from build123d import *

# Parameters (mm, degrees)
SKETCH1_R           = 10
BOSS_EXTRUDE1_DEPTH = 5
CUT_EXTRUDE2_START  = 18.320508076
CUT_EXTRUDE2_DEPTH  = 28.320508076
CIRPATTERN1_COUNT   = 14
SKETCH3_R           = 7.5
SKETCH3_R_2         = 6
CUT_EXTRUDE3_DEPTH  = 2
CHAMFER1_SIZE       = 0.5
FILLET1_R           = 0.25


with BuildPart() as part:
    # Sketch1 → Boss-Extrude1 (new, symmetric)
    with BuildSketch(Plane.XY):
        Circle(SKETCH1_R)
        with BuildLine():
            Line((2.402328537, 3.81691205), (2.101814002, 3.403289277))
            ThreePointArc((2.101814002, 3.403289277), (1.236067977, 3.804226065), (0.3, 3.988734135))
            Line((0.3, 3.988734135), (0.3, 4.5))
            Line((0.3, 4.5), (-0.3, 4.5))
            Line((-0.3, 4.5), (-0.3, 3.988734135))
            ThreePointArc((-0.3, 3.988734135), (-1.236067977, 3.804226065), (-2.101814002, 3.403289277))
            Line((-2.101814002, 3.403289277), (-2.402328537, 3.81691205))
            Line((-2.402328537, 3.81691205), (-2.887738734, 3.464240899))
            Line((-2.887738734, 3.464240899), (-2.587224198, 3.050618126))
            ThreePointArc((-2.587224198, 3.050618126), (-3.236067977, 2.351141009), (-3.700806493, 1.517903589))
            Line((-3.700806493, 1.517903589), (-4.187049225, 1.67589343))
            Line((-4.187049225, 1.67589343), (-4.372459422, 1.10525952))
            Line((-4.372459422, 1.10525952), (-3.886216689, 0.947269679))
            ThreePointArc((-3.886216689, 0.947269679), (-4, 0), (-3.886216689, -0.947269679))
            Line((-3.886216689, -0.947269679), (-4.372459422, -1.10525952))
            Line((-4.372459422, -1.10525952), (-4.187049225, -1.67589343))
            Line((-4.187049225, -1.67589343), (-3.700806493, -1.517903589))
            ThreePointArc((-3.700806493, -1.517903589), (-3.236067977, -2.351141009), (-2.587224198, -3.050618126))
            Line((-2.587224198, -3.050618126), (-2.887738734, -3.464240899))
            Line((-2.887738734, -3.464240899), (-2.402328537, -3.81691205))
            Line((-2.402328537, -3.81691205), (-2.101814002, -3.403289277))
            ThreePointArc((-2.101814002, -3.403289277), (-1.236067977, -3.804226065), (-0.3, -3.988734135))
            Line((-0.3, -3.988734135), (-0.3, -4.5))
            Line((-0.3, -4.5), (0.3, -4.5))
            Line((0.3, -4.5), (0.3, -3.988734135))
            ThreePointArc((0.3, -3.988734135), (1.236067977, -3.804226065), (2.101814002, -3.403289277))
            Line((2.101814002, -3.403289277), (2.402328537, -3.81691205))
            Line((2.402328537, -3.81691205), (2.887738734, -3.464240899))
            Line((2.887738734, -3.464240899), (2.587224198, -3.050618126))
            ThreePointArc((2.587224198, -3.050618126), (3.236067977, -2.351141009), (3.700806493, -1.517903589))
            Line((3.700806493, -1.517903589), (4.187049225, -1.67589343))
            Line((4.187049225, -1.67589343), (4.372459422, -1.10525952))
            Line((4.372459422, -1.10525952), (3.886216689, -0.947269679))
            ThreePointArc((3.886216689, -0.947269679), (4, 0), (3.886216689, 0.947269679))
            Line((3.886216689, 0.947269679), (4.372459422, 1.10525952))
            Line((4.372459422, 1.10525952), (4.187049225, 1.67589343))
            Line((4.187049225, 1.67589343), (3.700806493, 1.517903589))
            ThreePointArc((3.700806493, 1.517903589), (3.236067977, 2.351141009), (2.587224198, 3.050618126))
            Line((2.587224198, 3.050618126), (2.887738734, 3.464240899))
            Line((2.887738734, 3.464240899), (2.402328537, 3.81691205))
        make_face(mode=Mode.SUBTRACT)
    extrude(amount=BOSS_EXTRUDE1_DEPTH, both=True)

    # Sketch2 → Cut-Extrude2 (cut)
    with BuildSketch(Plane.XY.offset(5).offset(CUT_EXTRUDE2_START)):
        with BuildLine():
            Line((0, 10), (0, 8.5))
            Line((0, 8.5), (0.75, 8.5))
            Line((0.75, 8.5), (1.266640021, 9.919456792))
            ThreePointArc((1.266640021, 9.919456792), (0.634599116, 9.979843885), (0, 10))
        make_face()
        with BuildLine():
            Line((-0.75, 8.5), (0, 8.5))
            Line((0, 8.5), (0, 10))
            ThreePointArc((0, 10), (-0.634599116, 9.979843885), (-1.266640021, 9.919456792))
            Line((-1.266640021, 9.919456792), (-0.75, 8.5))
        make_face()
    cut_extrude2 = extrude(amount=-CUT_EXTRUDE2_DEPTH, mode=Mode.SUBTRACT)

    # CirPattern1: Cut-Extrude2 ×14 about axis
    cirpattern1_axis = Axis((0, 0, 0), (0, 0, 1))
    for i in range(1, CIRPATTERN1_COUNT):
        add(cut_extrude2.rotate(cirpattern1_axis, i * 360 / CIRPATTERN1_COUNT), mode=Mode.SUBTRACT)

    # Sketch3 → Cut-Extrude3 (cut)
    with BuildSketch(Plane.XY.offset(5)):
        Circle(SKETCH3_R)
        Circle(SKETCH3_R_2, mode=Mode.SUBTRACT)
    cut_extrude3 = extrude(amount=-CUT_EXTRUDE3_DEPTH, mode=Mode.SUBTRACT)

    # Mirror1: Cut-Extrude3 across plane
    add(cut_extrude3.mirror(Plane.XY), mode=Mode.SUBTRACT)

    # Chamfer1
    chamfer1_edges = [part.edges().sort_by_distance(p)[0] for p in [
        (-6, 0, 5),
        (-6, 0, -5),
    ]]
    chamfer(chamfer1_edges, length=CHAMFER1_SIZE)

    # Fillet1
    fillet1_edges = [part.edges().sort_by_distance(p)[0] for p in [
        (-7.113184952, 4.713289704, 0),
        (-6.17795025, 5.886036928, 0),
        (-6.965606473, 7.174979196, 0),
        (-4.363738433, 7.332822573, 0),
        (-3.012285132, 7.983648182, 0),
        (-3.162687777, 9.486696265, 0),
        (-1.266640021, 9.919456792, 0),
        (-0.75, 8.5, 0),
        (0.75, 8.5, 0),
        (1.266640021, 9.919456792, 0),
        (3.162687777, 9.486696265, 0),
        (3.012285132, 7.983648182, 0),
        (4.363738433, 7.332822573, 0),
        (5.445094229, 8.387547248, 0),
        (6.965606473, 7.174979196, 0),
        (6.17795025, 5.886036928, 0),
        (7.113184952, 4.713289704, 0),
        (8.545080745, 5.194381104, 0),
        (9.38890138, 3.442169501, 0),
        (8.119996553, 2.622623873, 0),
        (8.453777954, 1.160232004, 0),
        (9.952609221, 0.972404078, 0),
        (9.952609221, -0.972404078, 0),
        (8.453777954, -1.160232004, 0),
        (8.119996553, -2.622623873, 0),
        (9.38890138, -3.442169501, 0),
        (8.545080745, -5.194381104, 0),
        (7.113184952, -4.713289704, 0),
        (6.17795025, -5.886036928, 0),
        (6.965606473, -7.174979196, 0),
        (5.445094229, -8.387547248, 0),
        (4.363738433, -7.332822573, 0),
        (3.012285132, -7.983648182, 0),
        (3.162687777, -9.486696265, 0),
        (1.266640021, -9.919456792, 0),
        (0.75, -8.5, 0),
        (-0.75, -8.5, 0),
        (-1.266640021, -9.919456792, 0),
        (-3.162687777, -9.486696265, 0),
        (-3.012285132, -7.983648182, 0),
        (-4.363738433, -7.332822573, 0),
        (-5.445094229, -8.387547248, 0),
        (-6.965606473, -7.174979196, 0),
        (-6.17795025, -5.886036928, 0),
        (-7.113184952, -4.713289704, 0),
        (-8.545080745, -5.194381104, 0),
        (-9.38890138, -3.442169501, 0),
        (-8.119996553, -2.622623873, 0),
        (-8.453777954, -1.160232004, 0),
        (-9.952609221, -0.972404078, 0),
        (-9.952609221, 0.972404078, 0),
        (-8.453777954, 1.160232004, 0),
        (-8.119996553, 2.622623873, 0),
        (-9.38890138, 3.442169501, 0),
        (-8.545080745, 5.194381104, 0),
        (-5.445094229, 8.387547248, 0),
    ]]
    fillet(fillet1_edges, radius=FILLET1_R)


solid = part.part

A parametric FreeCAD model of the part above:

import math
import FreeCAD as App
import Part
import Sketcher
Q = App.Units.Quantity


def edges_at(feature, points):
    """Names of the edges that pass closest to the given points."""
    edges = feature.Shape.Edges
    near = lambda p: min(range(len(edges)), key=lambda i: edges[i].distToShape(Part.Vertex(*p))[0])
    return sorted({f"Edge{near(p) + 1}" for p in points})

doc = App.newDocument("Part")
body = doc.addObject("PartDesign::Body", "Body")

# Sketch on XY plane
sketch1 = body.newObject("Sketcher::SketchObject", "Sketch")
sketch1.AttachmentSupport = (doc.getObject("XY_Plane"), [""])
sketch1.MapMode = "FlatFace"
sketch1.addGeometry([
    Part.Circle(App.Vector(0, 0, 0), App.Vector(0, 0, 1), 10),  # 0
    Part.LineSegment(App.Vector(2.1, 3.4, 0), App.Vector(2.4, 3.8, 0)),  # 1
    Part.LineSegment(App.Vector(2.4, 3.8, 0), App.Vector(2.9, 3.5, 0)),  # 2
    Part.LineSegment(App.Vector(2.9, 3.5, 0), App.Vector(2.6, 3.1, 0)),  # 3
    Part.ArcOfCircle(Part.Circle(App.Vector(0, 0, 0), App.Vector(0, 0, 1), 4), math.radians(22), math.radians(50)),  # 4
    Part.LineSegment(App.Vector(3.7, 1.5, 0), App.Vector(4.2, 1.7, 0)),  # 5
    Part.LineSegment(App.Vector(4.2, 1.7, 0), App.Vector(4.4, 1.1, 0)),  # 6
    Part.LineSegment(App.Vector(4.4, 1.1, 0), App.Vector(3.9, 0.9, 0)),  # 7
    Part.ArcOfCircle(Part.Circle(App.Vector(0, 0, 0), App.Vector(0, 0, 1), 4), math.radians(-14), math.radians(14)),  # 8
    Part.LineSegment(App.Vector(3.9, -0.9, 0), App.Vector(4.4, -1.1, 0)),  # 9
    Part.LineSegment(App.Vector(4.4, -1.1, 0), App.Vector(4.2, -1.7, 0)),  # 10
    Part.LineSegment(App.Vector(4.2, -1.7, 0), App.Vector(3.7, -1.5, 0)),  # 11
    Part.ArcOfCircle(Part.Circle(App.Vector(0, 0, 0), App.Vector(0, 0, 1), 4), math.radians(-50), math.radians(-22)),  # 12
    Part.LineSegment(App.Vector(2.6, -3.1, 0), App.Vector(2.9, -3.5, 0)),  # 13
    Part.LineSegment(App.Vector(2.9, -3.5, 0), App.Vector(2.4, -3.8, 0)),  # 14
    Part.LineSegment(App.Vector(2.4, -3.8, 0), App.Vector(2.1, -3.4, 0)),  # 15
    Part.ArcOfCircle(Part.Circle(App.Vector(0, 0, 0), App.Vector(0, 0, 1), 4), math.radians(-86), math.radians(-58)),  # 16
    Part.LineSegment(App.Vector(0.3, -4, 0), App.Vector(0.3, -4.5, 0)),  # 17
    Part.LineSegment(App.Vector(0.3, -4.5, 0), App.Vector(-0.3, -4.5, 0)),  # 18
    Part.LineSegment(App.Vector(-0.3, -4.5, 0), App.Vector(-0.3, -4, 0)),  # 19
    Part.ArcOfCircle(Part.Circle(App.Vector(0, 0, 0), App.Vector(0, 0, 1), 4), math.radians(-122), math.radians(-94)),  # 20
    Part.LineSegment(App.Vector(-2.1, -3.4, 0), App.Vector(-2.4, -3.8, 0)),  # 21
    Part.LineSegment(App.Vector(-2.4, -3.8, 0), App.Vector(-2.9, -3.5, 0)),  # 22
    Part.LineSegment(App.Vector(-2.9, -3.5, 0), App.Vector(-2.6, -3.1, 0)),  # 23
    Part.ArcOfCircle(Part.Circle(App.Vector(0, 0, 0), App.Vector(0, 0, 1), 4), math.radians(-158), math.radians(-130)),  # 24
    Part.LineSegment(App.Vector(-3.7, -1.5, 0), App.Vector(-4.2, -1.7, 0)),  # 25
    Part.LineSegment(App.Vector(-4.2, -1.7, 0), App.Vector(-4.4, -1.1, 0)),  # 26
    Part.LineSegment(App.Vector(-4.4, -1.1, 0), App.Vector(-3.9, -0.9, 0)),  # 27
    Part.ArcOfCircle(Part.Circle(App.Vector(0, 0, 0), App.Vector(0, 0, 1), 4), math.radians(166), math.radians(194)),  # 28
    Part.LineSegment(App.Vector(-3.9, 0.9, 0), App.Vector(-4.4, 1.1, 0)),  # 29
    Part.LineSegment(App.Vector(-4.4, 1.1, 0), App.Vector(-4.2, 1.7, 0)),  # 30
    Part.LineSegment(App.Vector(-4.2, 1.7, 0), App.Vector(-3.7, 1.5, 0)),  # 31
    Part.ArcOfCircle(Part.Circle(App.Vector(0, 0, 0), App.Vector(0, 0, 1), 4), math.radians(130), math.radians(158)),  # 32
    Part.LineSegment(App.Vector(-2.6, 3.1, 0), App.Vector(-2.9, 3.5, 0)),  # 33
    Part.LineSegment(App.Vector(-2.9, 3.5, 0), App.Vector(-2.4, 3.8, 0)),  # 34
    Part.LineSegment(App.Vector(-2.4, 3.8, 0), App.Vector(-2.1, 3.4, 0)),  # 35
    Part.ArcOfCircle(Part.Circle(App.Vector(0, 0, 0), App.Vector(0, 0, 1), 4), math.radians(94), math.radians(122)),  # 36
    Part.LineSegment(App.Vector(-0.3, 4, 0), App.Vector(-0.3, 4.5, 0)),  # 37
    Part.LineSegment(App.Vector(-0.3, 4.5, 0), App.Vector(0.3, 4.5, 0)),  # 38
    Part.LineSegment(App.Vector(0.3, 4.5, 0), App.Vector(0.3, 4, 0)),  # 39
    Part.ArcOfCircle(Part.Circle(App.Vector(0, 0, 0), App.Vector(0, 0, 1), 4), math.radians(58), math.radians(86)),  # 40
], False)
sketch1.addConstraint([
    Sketcher.Constraint("Coincident", 1, 2, 2, 1),
    Sketcher.Constraint("Coincident", 2, 2, 3, 1),
    Sketcher.Constraint("Coincident", 3, 2, 4, 2),
    Sketcher.Constraint("Coincident", 4, 1, 5, 1),
    Sketcher.Constraint("Coincident", 5, 2, 6, 1),
    Sketcher.Constraint("Coincident", 6, 2, 7, 1),
    Sketcher.Constraint("Coincident", 7, 2, 8, 2),
    Sketcher.Constraint("Coincident", 8, 1, 9, 1),
    Sketcher.Constraint("Coincident", 9, 2, 10, 1),
    Sketcher.Constraint("Coincident", 10, 2, 11, 1),
    Sketcher.Constraint("Coincident", 11, 2, 12, 2),
    Sketcher.Constraint("Coincident", 12, 1, 13, 1),
    Sketcher.Constraint("Coincident", 13, 2, 14, 1),
    Sketcher.Constraint("Coincident", 14, 2, 15, 1),
    Sketcher.Constraint("Coincident", 15, 2, 16, 2),
    Sketcher.Constraint("Coincident", 16, 1, 17, 1),
    Sketcher.Constraint("Coincident", 17, 2, 18, 1),
    Sketcher.Constraint("Coincident", 18, 2, 19, 1),
    Sketcher.Constraint("Coincident", 19, 2, 20, 2),
    Sketcher.Constraint("Coincident", 20, 1, 21, 1),
    Sketcher.Constraint("Coincident", 21, 2, 22, 1),
    Sketcher.Constraint("Coincident", 22, 2, 23, 1),
    Sketcher.Constraint("Coincident", 23, 2, 24, 2),
    Sketcher.Constraint("Coincident", 24, 1, 25, 1),
    Sketcher.Constraint("Coincident", 25, 2, 26, 1),
    Sketcher.Constraint("Coincident", 26, 2, 27, 1),
    Sketcher.Constraint("Coincident", 27, 2, 28, 2),
    Sketcher.Constraint("Coincident", 28, 1, 29, 1),
    Sketcher.Constraint("Coincident", 29, 2, 30, 1),
    Sketcher.Constraint("Coincident", 30, 2, 31, 1),
    Sketcher.Constraint("Coincident", 31, 2, 32, 2),
    Sketcher.Constraint("Coincident", 32, 1, 33, 1),
    Sketcher.Constraint("Coincident", 33, 2, 34, 1),
    Sketcher.Constraint("Coincident", 34, 2, 35, 1),
    Sketcher.Constraint("Coincident", 35, 2, 36, 2),
    Sketcher.Constraint("Coincident", 36, 1, 37, 1),
    Sketcher.Constraint("Coincident", 37, 2, 38, 1),
    Sketcher.Constraint("Coincident", 38, 2, 39, 1),
    Sketcher.Constraint("Coincident", 39, 2, 40, 2),
    Sketcher.Constraint("Coincident", 40, 1, 1, 1),
    Sketcher.Constraint("Vertical", 17),
    Sketcher.Constraint("Horizontal", 18),
    Sketcher.Constraint("Vertical", 19),
    Sketcher.Constraint("Vertical", 37),
    Sketcher.Constraint("Horizontal", 38),
    Sketcher.Constraint("Vertical", 39),
    Sketcher.Constraint("Coincident", 0, 3, -1, 1),
    Sketcher.Constraint("Coincident", 4, 3, -1, 1),
    Sketcher.Constraint("Coincident", 8, 3, -1, 1),
    Sketcher.Constraint("Coincident", 12, 3, -1, 1),
    Sketcher.Constraint("Coincident", 16, 3, -1, 1),
    Sketcher.Constraint("Coincident", 20, 3, -1, 1),
    Sketcher.Constraint("Coincident", 24, 3, -1, 1),
    Sketcher.Constraint("Coincident", 28, 3, -1, 1),
    Sketcher.Constraint("Coincident", 32, 3, -1, 1),
    Sketcher.Constraint("Coincident", 36, 3, -1, 1),
    Sketcher.Constraint("Coincident", 40, 3, -1, 1),
    Sketcher.Constraint("Equal", 4, 8),
    Sketcher.Constraint("Equal", 8, 12),
    Sketcher.Constraint("Equal", 12, 16),
    Sketcher.Constraint("Equal", 16, 20),
    Sketcher.Constraint("Equal", 20, 24),
    Sketcher.Constraint("Equal", 24, 28),
    Sketcher.Constraint("Equal", 28, 32),
    Sketcher.Constraint("Equal", 32, 36),
    Sketcher.Constraint("Equal", 36, 40),
    Sketcher.Constraint("Symmetric", 1, 2, 21, 2, -1, 1),
    Sketcher.Constraint("Symmetric", 2, 2, 22, 2, -1, 1),
    Sketcher.Constraint("Symmetric", 5, 2, 25, 2, -1, 1),
    Sketcher.Constraint("Symmetric", 6, 2, 26, 2, -1, 1),
    Sketcher.Constraint("Symmetric", 9, 2, 29, 2, -1, 1),
    Sketcher.Constraint("Symmetric", 10, 2, 30, 2, -1, 1),
    Sketcher.Constraint("Symmetric", 13, 2, 33, 2, -1, 1),
    Sketcher.Constraint("Symmetric", 14, 2, 34, 2, -1, 1),
    Sketcher.Constraint("Symmetric", 17, 2, 37, 2, -1, 1),
    Sketcher.Constraint("Symmetric", 14, 2, 21, 2, -2),
    Sketcher.Constraint("Symmetric", 13, 2, 22, 2, -2),
    Sketcher.Constraint("Symmetric", 10, 2, 25, 2, -2),
    Sketcher.Constraint("Symmetric", 9, 2, 26, 2, -2),
    Sketcher.Constraint("Perpendicular", 1, 2),
    Sketcher.Constraint("Perpendicular", 2, 3),
    Sketcher.Constraint("Perpendicular", 5, 6),
    Sketcher.Constraint("Perpendicular", 6, 7),
    Sketcher.Constraint("Perpendicular", 9, 10),
    Sketcher.Constraint("Perpendicular", 10, 11),
    Sketcher.Constraint("Perpendicular", 13, 14),
    Sketcher.Constraint("Perpendicular", 14, 15),
    Sketcher.Constraint("Parallel", 3, 21),
    Sketcher.Constraint("Perpendicular", 22, 23),
    Sketcher.Constraint("Parallel", 7, 25),
    Sketcher.Constraint("Perpendicular", 26, 27),
    Sketcher.Constraint("Parallel", 11, 29),
    Sketcher.Constraint("Perpendicular", 30, 31),
    Sketcher.Constraint("Parallel", 15, 33),
    Sketcher.Constraint("Perpendicular", 34, 35),
    Sketcher.Constraint("Horizontal", 16, 1, 19, 2),
    Sketcher.Constraint("Horizontal", 36, 1, 39, 2),
    Sketcher.Constraint("Equal", 1, 3),
    Sketcher.Constraint("Equal", 3, 5),
    Sketcher.Constraint("Equal", 2, 6),
    Sketcher.Constraint("Equal", 5, 7),
    Sketcher.Constraint("Diameter", 0, Q("20 mm")),
    Sketcher.Constraint("Radius", 4, Q("4 mm")),
    Sketcher.Constraint("Angle", 1, Q("54 deg")),
    Sketcher.Constraint("Angle", 5, Q("18 deg")),
    Sketcher.Constraint("DistanceX", 18, 2, 18, 1, Q("0.6 mm")),
    Sketcher.Constraint("Distance", 2, Q("0.6 mm")),
    Sketcher.Constraint("DistanceY", 17, 2, -1, 1, Q("4.5 mm")),
    Sketcher.Constraint("DistanceX", -1, 1, 1, 2, Q("2.402329 mm")),
])
pad1 = body.newObject("PartDesign::Pad", "Pad")
pad1.Profile = sketch1
pad1.Length = 10
pad1.Midplane = True

# Sketch on XY plane
sketch2 = body.newObject("Sketcher::SketchObject", "Sketch001")
sketch2.AttachmentSupport = (doc.getObject("XY_Plane"), [""])
sketch2.MapMode = "FlatFace"
sketch2.AttachmentOffset = App.Placement(App.Vector(0, 0, 23.320508), App.Rotation())
sketch2.addGeometry([
    Part.LineSegment(App.Vector(0.8, 8.5, 0), App.Vector(1.3, 9.9, 0)),  # 0
    Part.ArcOfCircle(Part.Circle(App.Vector(0, 0, 0), App.Vector(0, 0, 1), 10), math.radians(82.72), math.radians(90)),  # 1
    Part.ArcOfCircle(Part.Circle(App.Vector(0, 0, 0), App.Vector(0, 0, 1), 10), math.radians(90), math.radians(97.28)),  # 2
    Part.LineSegment(App.Vector(-1.3, 9.9, 0), App.Vector(-0.8, 8.5, 0)),  # 3
    Part.LineSegment(App.Vector(-0.8, 8.5, 0), App.Vector(0.8, 8.5, 0)),  # 4
], False)
sketch2.addConstraint([
    Sketcher.Constraint("Coincident", 0, 2, 1, 1),
    Sketcher.Constraint("Tangent", 1, 2, 2, 1),
    Sketcher.Constraint("Coincident", 2, 2, 3, 1),
    Sketcher.Constraint("Coincident", 3, 2, 4, 1),
    Sketcher.Constraint("Coincident", 4, 2, 0, 1),
    Sketcher.Constraint("Horizontal", 4),
    Sketcher.Constraint("Coincident", 1, 3, -1, 1),
    Sketcher.Constraint("Equal", 1, 2),
    Sketcher.Constraint("PointOnObject", 1, 2, -2),
    Sketcher.Constraint("Horizontal", 0, 2, 2, 2),
    Sketcher.Constraint("Equal", 0, 3),
    Sketcher.Constraint("Radius", 1, Q("10 mm")),
    Sketcher.Constraint("Angle", 0, Q("70 deg")),
    Sketcher.Constraint("DistanceX", 4, 1, 4, 2, Q("1.5 mm")),
    Sketcher.Constraint("DistanceY", -1, 1, 3, 2, Q("8.5 mm")),
])
pocket1 = body.newObject("PartDesign::Pocket", "Pocket")
pocket1.Profile = sketch2
pocket1.Length = 28.320508
doc.recompute()

polarpattern = body.newObject("PartDesign::PolarPattern", "PolarPattern")
polarpattern.Originals = [pocket1]
polarpattern.Axis = (doc.getObject("Z_Axis"), [""])
polarpattern.Angle = 360
polarpattern.Occurrences = 14
body.Tip = polarpattern

# Sketch on XY plane
sketch3 = body.newObject("Sketcher::SketchObject", "Sketch002")
sketch3.AttachmentSupport = (doc.getObject("XY_Plane"), [""])
sketch3.MapMode = "FlatFace"
sketch3.AttachmentOffset = App.Placement(App.Vector(0, 0, 5), App.Rotation())
sketch3.addGeometry([
    Part.Circle(App.Vector(0, 0, 0), App.Vector(0, 0, 1), 8),
    Part.Circle(App.Vector(0, 0, 0), App.Vector(0, 0, 1), 6),
], False)
sketch3.addConstraint([
    Sketcher.Constraint("Coincident", 0, 3, -1, 1),
    Sketcher.Constraint("Coincident", 1, 3, -1, 1),
    Sketcher.Constraint("Diameter", 0, Q("15 mm")),
    Sketcher.Constraint("Diameter", 1, Q("12 mm")),
])
pocket2 = body.newObject("PartDesign::Pocket", "Pocket001")
pocket2.Profile = sketch3
pocket2.Length = 2
doc.recompute()

mirrored = body.newObject("PartDesign::Mirrored", "Mirrored")
mirrored.Originals = [pocket2]
mirrored.MirrorPlane = (doc.getObject("XY_Plane"), [""])
body.Tip = mirrored
doc.recompute()

chamfer = body.newObject("PartDesign::Chamfer", "Chamfer")
chamfer.Base = (mirrored, edges_at(mirrored, [(-6, 0, 5), (-6, 0, -5)]))
chamfer.Size = 0.5
doc.recompute()

fillet = body.newObject("PartDesign::Fillet", "Fillet")
fillet.Base = (chamfer, edges_at(chamfer, [
    (-7.113, 4.713, 0),
    (-6.178, 5.886, 0),
    (-6.966, 7.175, 0),
    (-4.364, 7.333, 0),
    (-3.012, 7.984, 0),
    (-3.163, 9.487, 0),
    (-1.267, 9.919, 0),
    (-0.75, 8.5, 0),
    (0.75, 8.5, 0),
    (1.267, 9.919, 0),
    (3.163, 9.487, 0),
    (3.012, 7.984, 0),
    (4.364, 7.333, 0),
    (5.445, 8.388, 0),
    (6.966, 7.175, 0),
    (6.178, 5.886, 0),
    (7.113, 4.713, 0),
    (8.545, 5.194, 0),
    (9.389, 3.442, 0),
    (8.12, 2.623, 0),
    (8.454, 1.16, 0),
    (9.953, 0.972, 0),
    (9.953, -0.972, 0),
    (8.454, -1.16, 0),
    (8.12, -2.623, 0),
    (9.389, -3.442, 0),
    (8.545, -5.194, 0),
    (7.113, -4.713, 0),
    (6.178, -5.886, 0),
    (6.966, -7.175, 0),
    (5.445, -8.388, 0),
    (4.364, -7.333, 0),
    (3.012, -7.984, 0),
    (3.163, -9.487, 0),
    (1.267, -9.919, 0),
    (0.75, -8.5, 0),
    (-0.75, -8.5, 0),
    (-1.267, -9.919, 0),
    (-3.163, -9.487, 0),
    (-3.012, -7.984, 0),
    (-4.364, -7.333, 0),
    (-5.445, -8.388, 0),
    (-6.966, -7.175, 0),
    (-6.178, -5.886, 0),
    (-7.113, -4.713, 0),
    (-8.545, -5.194, 0),
    (-9.389, -3.442, 0),
    (-8.12, -2.623, 0),
    (-8.454, -1.16, 0),
    (-9.953, -0.972, 0),
    (-9.953, 0.972, 0),
    (-8.454, 1.16, 0),
    (-8.12, 2.623, 0),
    (-9.389, 3.442, 0),
    (-8.545, 5.194, 0),
    (-5.445, 8.388, 0),
]))
fillet.Radius = 0.25

doc.recompute()
